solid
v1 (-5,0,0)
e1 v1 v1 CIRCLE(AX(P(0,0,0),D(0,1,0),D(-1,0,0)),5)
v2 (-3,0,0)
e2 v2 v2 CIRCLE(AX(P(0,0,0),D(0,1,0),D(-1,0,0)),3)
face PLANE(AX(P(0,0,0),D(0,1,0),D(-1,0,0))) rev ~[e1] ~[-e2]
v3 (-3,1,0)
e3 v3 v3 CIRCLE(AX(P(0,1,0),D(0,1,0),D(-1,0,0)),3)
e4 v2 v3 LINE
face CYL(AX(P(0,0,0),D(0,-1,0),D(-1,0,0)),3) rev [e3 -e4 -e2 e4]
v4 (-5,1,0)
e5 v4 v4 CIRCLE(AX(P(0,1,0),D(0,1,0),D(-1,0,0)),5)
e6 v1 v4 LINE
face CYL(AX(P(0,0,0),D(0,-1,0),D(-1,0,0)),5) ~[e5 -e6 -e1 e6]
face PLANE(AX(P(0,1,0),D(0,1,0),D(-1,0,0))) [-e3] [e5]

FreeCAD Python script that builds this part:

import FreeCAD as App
import Part
import Sketcher

V = App.Vector
Q = App.Units.Quantity

doc = App.newDocument("Part")
body = doc.addObject("PartDesign::Body", "Body")

sketch1 = body.newObject("Sketcher::SketchObject", "Sketch")
sketch1.AttachmentSupport = (doc.getObject("XZ_Plane"), [""])
sketch1.MapMode = "FlatFace"
sketch1.addGeometry(Part.Circle(V(0, 0, 0), V(0, 0, 1), 5), False)
sketch1.addGeometry(Part.Circle(V(0, 0, 0), V(0, 0, 1), 3), False)
sketch1.addConstraint(Sketcher.Constraint("Coincident", 0, 3, -1, 1))
sketch1.addConstraint(Sketcher.Constraint("Coincident", 1, 3, -1, 1))
sketch1.addConstraint(Sketcher.Constraint("Diameter", 0, Q("10 mm")))
sketch1.addConstraint(Sketcher.Constraint("Diameter", 1, Q("6 mm")))
pad1 = body.newObject("PartDesign::Pad", "Pad")
pad1.Profile = sketch1
pad1.Length = 1
pad1.Reversed = True

doc.recompute()
